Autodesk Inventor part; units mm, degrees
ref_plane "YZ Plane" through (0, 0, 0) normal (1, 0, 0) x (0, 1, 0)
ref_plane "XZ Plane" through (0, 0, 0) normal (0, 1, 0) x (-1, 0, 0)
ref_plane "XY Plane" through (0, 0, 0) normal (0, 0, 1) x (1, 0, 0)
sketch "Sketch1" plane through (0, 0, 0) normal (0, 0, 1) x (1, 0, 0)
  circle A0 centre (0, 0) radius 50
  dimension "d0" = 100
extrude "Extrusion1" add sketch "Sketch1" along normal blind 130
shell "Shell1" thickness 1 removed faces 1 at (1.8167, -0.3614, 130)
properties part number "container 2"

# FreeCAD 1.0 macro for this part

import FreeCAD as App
import Part
import Sketcher

V = App.Vector
Q = App.Units.Quantity


def faces_at(feature, points):
    """Names of the faces that lie closest to the given points."""
    faces = feature.Shape.Faces
    near = lambda p: min(range(len(faces)), key=lambda i: faces[i].distToShape(Part.Vertex(*p))[0])
    return sorted({f"Face{near(p) + 1}" for p in points})

doc = App.newDocument("Part")
body = doc.addObject("PartDesign::Body", "Body")

sketch1 = doc.addObject("Sketcher::SketchObject", "Sketch")
body.addObject(sketch1)
sketch1.AttachmentSupport = (doc.XY_Plane, [""])
sketch1.MapMode = "FlatFace"
sketch1.addGeometry(Part.Circle(V(0, 0, 0), V(0, 0, 1), 50), False)
sketch1.addConstraint([
    Sketcher.Constraint("Coincident", 0, 3, -1, 1),
    Sketcher.Constraint("Diameter", 0, Q("100 mm")),
])
pad1 = doc.addObject("PartDesign::Pad", "Pad")
body.addObject(pad1)
pad1.Profile = sketch1
pad1.Length = 130
doc.recompute()

thickness = doc.addObject("PartDesign::Thickness", "Thickness")
body.addObject(thickness)
thickness.Base = (pad1, faces_at(pad1, [(1.817, -0.361, 130)]))
thickness.Value = 1
thickness.Reversed = True
thickness.Join = "Intersection"

doc.recompute()
